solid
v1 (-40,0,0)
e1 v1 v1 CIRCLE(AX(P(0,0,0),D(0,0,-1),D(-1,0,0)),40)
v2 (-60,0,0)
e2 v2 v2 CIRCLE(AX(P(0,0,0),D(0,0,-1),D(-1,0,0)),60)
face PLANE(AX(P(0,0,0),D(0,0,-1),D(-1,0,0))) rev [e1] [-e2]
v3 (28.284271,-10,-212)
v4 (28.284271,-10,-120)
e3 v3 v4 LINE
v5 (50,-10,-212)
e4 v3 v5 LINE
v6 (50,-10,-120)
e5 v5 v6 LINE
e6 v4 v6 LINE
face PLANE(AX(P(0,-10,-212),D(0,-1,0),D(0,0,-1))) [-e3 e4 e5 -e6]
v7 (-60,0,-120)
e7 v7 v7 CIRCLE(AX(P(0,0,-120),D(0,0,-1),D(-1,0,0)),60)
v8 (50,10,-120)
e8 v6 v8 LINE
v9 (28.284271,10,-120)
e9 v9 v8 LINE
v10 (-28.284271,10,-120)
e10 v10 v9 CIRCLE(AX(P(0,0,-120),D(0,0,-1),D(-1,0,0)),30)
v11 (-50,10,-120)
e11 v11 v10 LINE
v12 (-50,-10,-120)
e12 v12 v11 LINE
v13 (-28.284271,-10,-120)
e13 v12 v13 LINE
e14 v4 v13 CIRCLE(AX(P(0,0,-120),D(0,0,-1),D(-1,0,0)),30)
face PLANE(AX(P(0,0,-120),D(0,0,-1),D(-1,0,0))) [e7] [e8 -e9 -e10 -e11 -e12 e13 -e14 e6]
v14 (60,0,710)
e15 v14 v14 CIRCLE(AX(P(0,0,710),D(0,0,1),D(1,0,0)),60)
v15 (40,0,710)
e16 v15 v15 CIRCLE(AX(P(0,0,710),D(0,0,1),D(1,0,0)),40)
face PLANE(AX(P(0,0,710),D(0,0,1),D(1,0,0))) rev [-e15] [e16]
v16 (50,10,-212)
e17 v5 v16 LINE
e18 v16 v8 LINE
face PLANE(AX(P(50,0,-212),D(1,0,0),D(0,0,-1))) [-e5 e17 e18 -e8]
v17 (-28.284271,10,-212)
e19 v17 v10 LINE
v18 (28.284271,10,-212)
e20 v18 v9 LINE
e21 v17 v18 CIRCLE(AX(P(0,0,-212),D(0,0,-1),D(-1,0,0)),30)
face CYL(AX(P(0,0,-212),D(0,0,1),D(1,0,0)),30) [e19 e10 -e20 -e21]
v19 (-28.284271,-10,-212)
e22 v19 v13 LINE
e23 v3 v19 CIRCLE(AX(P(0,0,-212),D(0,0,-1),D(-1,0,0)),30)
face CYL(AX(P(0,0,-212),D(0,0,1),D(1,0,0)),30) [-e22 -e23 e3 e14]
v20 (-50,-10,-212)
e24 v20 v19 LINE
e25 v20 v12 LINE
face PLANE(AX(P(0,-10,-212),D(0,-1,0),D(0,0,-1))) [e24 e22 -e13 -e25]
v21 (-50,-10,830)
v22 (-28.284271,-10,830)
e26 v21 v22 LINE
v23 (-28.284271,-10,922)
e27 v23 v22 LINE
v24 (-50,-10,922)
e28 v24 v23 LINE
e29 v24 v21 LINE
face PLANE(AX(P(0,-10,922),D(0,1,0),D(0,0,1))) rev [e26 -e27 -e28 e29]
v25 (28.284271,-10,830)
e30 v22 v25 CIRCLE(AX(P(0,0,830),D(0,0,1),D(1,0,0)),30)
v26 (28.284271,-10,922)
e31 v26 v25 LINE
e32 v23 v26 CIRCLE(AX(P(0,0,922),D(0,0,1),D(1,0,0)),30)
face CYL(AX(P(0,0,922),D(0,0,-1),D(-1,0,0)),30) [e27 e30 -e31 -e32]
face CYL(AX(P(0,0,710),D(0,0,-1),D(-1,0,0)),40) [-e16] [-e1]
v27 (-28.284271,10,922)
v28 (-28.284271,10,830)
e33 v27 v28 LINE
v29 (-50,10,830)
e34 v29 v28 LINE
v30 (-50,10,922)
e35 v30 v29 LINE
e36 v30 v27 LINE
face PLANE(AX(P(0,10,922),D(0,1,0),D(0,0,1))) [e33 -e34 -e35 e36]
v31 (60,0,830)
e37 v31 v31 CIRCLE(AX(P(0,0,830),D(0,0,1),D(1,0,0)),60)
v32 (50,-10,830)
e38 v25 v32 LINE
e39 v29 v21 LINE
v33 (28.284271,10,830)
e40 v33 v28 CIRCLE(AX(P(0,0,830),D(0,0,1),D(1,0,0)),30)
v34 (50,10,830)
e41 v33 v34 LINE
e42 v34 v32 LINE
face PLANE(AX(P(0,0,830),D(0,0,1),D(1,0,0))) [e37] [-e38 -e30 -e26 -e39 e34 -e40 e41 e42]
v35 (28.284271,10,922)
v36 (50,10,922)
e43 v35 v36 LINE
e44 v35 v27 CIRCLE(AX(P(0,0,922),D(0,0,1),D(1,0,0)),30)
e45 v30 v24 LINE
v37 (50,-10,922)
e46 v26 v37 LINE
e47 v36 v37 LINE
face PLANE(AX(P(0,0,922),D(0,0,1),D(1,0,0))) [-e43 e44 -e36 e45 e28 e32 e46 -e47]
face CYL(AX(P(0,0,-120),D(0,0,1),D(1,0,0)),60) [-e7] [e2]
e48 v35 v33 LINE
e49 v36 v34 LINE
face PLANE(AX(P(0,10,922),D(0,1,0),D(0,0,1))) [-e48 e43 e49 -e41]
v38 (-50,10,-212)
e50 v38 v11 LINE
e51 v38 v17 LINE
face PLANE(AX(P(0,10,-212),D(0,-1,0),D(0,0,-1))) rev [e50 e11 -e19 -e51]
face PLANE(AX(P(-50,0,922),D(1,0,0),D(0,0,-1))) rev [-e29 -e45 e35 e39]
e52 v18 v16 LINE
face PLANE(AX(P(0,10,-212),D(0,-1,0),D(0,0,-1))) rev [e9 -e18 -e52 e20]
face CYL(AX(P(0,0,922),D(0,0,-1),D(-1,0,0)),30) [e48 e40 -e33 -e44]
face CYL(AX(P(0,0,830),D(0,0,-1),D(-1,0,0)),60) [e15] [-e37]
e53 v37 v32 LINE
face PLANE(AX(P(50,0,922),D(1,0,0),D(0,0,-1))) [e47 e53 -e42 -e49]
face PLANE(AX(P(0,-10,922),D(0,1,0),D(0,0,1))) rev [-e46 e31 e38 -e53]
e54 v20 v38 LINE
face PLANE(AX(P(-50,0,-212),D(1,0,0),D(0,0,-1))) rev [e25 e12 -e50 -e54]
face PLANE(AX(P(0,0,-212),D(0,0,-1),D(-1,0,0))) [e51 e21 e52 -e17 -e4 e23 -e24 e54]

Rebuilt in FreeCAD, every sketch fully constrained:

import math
import FreeCAD as App
import Part
import Sketcher

V = App.Vector

doc = App.newDocument("Part")
body = doc.addObject("PartDesign::Body", "Body")

# Sketch on XY plane
sketch1 = body.newObject("Sketcher::SketchObject", "Sketch")
sketch1.AttachmentSupport = (doc.getObject("XY_Plane"), [""])
sketch1.MapMode = "FlatFace"
sketch1.addGeometry(Part.Circle(V(0, 0, 0), V(0, 0, 1), 40), False)
sketch1.addConstraint([
    Sketcher.Constraint("Coincident", 0, 3, -1, 1),
    Sketcher.Constraint("Diameter", 0, 80.0),
])
pad1 = body.newObject("PartDesign::Pad", "Pad")
pad1.Profile = sketch1
pad1.Length = 710

# Sketch on XY plane
sketch2 = body.newObject("Sketcher::SketchObject", "Sketch001")
sketch2.AttachmentSupport = (doc.getObject("XY_Plane"), [""])
sketch2.MapMode = "FlatFace"
sketch2.AttachmentOffset = App.Placement(V(0, 0, 710), App.Rotation())
sketch2.addGeometry(Part.Circle(V(0, 0, 0), V(0, 0, 1), 60), False)
sketch2.addConstraint([
    Sketcher.Constraint("Coincident", 0, 3, -1, 1),
    Sketcher.Constraint("Diameter", 0, 120.0),
])
pad2 = body.newObject("PartDesign::Pad", "Pad001")
pad2.Profile = sketch2
pad2.Length = 120

# Sketch on XY plane
sketch3 = body.newObject("Sketcher::SketchObject", "Sketch002")
sketch3.AttachmentSupport = (doc.getObject("XY_Plane"), [""])
sketch3.MapMode = "FlatFace"
sketch3.addGeometry(Part.Circle(V(0, 0, 0), V(0, 0, 1), 60), False)
sketch3.addConstraint([
    Sketcher.Constraint("Coincident", 0, 3, -1, 1),
    Sketcher.Constraint("Diameter", 0, 120.0),
])
pad3 = body.newObject("PartDesign::Pad", "Pad002")
pad3.Profile = sketch3
pad3.Length = 120
pad3.Reversed = True

# Sketch on XY plane
sketch4 = body.newObject("Sketcher::SketchObject", "Sketch003")
sketch4.AttachmentSupport = (doc.getObject("XY_Plane"), [""])
sketch4.MapMode = "FlatFace"
sketch4.AttachmentOffset = App.Placement(V(0, 0, 830), App.Rotation())
sketch4.addGeometry([
    Part.LineSegment(V(-28.284271, 10, 0), V(-50, 10, 0)),  # 0
    Part.LineSegment(V(-50, 10, 0), V(-50, -10, 0)),  # 1
    Part.LineSegment(V(-50, -10, 0), V(-28.284271, -10, 0)),  # 2
    Part.ArcOfCircle(Part.Circle(V(0, 0, 0), V(0, 0, 1), 30), math.radians(-160.528779), math.radians(-19.471221)),  # 3
    Part.LineSegment(V(28.284271, -10, 0), V(50, -10, 0)),  # 4
    Part.LineSegment(V(50, -10, 0), V(50, 10, 0)),  # 5
    Part.LineSegment(V(50, 10, 0), V(28.284271, 10, 0)),  # 6
    Part.ArcOfCircle(Part.Circle(V(0, 0, 0), V(0, 0, 1), 30), math.radians(19.471221), math.radians(160.528779)),  # 7
], False)
sketch4.addConstraint([
    Sketcher.Constraint("Coincident", 0, 2, 1, 1),
    Sketcher.Constraint("Coincident", 1, 2, 2, 1),
    Sketcher.Constraint("Coincident", 2, 2, 3, 1),
    Sketcher.Constraint("Coincident", 3, 2, 4, 1),
    Sketcher.Constraint("Coincident", 4, 2, 5, 1),
    Sketcher.Constraint("Coincident", 5, 2, 6, 1),
    Sketcher.Constraint("Coincident", 6, 2, 7, 1),
    Sketcher.Constraint("Coincident", 7, 2, 0, 1),
    Sketcher.Constraint("Horizontal", 0),
    Sketcher.Constraint("Vertical", 1),
    Sketcher.Constraint("Horizontal", 2),
    Sketcher.Constraint("Horizontal", 4),
    Sketcher.Constraint("Vertical", 5),
    Sketcher.Constraint("Horizontal", 6),
    Sketcher.Constraint("Coincident", 3, 3, -1, 1),
    Sketcher.Constraint("Coincident", 7, 3, -1, 1),
    Sketcher.Constraint("Equal", 3, 7),
    Sketcher.Constraint("Symmetric", 0, 2, 4, 2, -1, 1),
    Sketcher.Constraint("Horizontal", 2, 2, 3, 2),
    Sketcher.Constraint("Horizontal", 0, 2, 5, 2),
    Sketcher.Constraint("Radius", 3, 30.0),
    Sketcher.Constraint("DistanceY", 1, 2, 1, 1, 20.0),
    Sketcher.Constraint("DistanceX", 0, 2, -1, 1, 50.0),
])
pad4 = body.newObject("PartDesign::Pad", "Pad003")
pad4.Profile = sketch4
pad4.Length = 92

# Sketch on XY plane
sketch5 = body.newObject("Sketcher::SketchObject", "Sketch004")
sketch5.AttachmentSupport = (doc.getObject("XY_Plane"), [""])
sketch5.MapMode = "FlatFace"
sketch5.AttachmentOffset = App.Placement(V(0, 0, -120), App.Rotation())
sketch5.addGeometry([
    Part.ArcOfCircle(Part.Circle(V(0, 0, 0), V(0, 0, 1), 30), math.radians(19.471221), math.radians(160.528779)),  # 0
    Part.LineSegment(V(28.284271, 10, 0), V(50, 10, 0)),  # 1
    Part.LineSegment(V(50, 10, 0), V(50, -10, 0)),  # 2
    Part.LineSegment(V(50, -10, 0), V(28.284271, -10, 0)),  # 3
    Part.ArcOfCircle(Part.Circle(V(0, 0, 0), V(0, 0, 1), 30), math.radians(-160.528779), math.radians(-19.471221)),  # 4
    Part.LineSegment(V(-28.284271, -10, 0), V(-50, -10, 0)),  # 5
    Part.LineSegment(V(-50, -10, 0), V(-50, 10, 0)),  # 6
    Part.LineSegment(V(-50, 10, 0), V(-28.284271, 10, 0)),  # 7
], False)
sketch5.addConstraint([
    Sketcher.Constraint("Coincident", 0, 1, 1, 1),
    Sketcher.Constraint("Coincident", 1, 2, 2, 1),
    Sketcher.Constraint("Coincident", 2, 2, 3, 1),
    Sketcher.Constraint("Coincident", 3, 2, 4, 2),
    Sketcher.Constraint("Coincident", 4, 1, 5, 1),
    Sketcher.Constraint("Coincident", 5, 2, 6, 1),
    Sketcher.Constraint("Coincident", 6, 2, 7, 1),
    Sketcher.Constraint("Coincident", 7, 2, 0, 2),
    Sketcher.Constraint("Horizontal", 1),
    Sketcher.Constraint("Vertical", 2),
    Sketcher.Constraint("Horizontal", 3),
    Sketcher.Constraint("Horizontal", 5),
    Sketcher.Constraint("Vertical", 6),
    Sketcher.Constraint("Horizontal", 7),
    Sketcher.Constraint("Coincident", 0, 3, -1, 1),
    Sketcher.Constraint("Coincident", 4, 3, -1, 1),
    Sketcher.Constraint("Equal", 0, 4),
    Sketcher.Constraint("Symmetric", 1, 2, 5, 2, -1, 1),
    Sketcher.Constraint("Horizontal", 3, 2, 4, 1),
    Sketcher.Constraint("Horizontal", 1, 2, 6, 2),
    Sketcher.Constraint("Radius", 0, 30.0),
    Sketcher.Constraint("DistanceY", 2, 2, 2, 1, 20.0),
    Sketcher.Constraint("DistanceX", -1, 1, 1, 2, 50.0),
])
pad5 = body.newObject("PartDesign::Pad", "Pad004")
pad5.Profile = sketch5
pad5.Length = 92
pad5.Reversed = True

doc.recompute()
